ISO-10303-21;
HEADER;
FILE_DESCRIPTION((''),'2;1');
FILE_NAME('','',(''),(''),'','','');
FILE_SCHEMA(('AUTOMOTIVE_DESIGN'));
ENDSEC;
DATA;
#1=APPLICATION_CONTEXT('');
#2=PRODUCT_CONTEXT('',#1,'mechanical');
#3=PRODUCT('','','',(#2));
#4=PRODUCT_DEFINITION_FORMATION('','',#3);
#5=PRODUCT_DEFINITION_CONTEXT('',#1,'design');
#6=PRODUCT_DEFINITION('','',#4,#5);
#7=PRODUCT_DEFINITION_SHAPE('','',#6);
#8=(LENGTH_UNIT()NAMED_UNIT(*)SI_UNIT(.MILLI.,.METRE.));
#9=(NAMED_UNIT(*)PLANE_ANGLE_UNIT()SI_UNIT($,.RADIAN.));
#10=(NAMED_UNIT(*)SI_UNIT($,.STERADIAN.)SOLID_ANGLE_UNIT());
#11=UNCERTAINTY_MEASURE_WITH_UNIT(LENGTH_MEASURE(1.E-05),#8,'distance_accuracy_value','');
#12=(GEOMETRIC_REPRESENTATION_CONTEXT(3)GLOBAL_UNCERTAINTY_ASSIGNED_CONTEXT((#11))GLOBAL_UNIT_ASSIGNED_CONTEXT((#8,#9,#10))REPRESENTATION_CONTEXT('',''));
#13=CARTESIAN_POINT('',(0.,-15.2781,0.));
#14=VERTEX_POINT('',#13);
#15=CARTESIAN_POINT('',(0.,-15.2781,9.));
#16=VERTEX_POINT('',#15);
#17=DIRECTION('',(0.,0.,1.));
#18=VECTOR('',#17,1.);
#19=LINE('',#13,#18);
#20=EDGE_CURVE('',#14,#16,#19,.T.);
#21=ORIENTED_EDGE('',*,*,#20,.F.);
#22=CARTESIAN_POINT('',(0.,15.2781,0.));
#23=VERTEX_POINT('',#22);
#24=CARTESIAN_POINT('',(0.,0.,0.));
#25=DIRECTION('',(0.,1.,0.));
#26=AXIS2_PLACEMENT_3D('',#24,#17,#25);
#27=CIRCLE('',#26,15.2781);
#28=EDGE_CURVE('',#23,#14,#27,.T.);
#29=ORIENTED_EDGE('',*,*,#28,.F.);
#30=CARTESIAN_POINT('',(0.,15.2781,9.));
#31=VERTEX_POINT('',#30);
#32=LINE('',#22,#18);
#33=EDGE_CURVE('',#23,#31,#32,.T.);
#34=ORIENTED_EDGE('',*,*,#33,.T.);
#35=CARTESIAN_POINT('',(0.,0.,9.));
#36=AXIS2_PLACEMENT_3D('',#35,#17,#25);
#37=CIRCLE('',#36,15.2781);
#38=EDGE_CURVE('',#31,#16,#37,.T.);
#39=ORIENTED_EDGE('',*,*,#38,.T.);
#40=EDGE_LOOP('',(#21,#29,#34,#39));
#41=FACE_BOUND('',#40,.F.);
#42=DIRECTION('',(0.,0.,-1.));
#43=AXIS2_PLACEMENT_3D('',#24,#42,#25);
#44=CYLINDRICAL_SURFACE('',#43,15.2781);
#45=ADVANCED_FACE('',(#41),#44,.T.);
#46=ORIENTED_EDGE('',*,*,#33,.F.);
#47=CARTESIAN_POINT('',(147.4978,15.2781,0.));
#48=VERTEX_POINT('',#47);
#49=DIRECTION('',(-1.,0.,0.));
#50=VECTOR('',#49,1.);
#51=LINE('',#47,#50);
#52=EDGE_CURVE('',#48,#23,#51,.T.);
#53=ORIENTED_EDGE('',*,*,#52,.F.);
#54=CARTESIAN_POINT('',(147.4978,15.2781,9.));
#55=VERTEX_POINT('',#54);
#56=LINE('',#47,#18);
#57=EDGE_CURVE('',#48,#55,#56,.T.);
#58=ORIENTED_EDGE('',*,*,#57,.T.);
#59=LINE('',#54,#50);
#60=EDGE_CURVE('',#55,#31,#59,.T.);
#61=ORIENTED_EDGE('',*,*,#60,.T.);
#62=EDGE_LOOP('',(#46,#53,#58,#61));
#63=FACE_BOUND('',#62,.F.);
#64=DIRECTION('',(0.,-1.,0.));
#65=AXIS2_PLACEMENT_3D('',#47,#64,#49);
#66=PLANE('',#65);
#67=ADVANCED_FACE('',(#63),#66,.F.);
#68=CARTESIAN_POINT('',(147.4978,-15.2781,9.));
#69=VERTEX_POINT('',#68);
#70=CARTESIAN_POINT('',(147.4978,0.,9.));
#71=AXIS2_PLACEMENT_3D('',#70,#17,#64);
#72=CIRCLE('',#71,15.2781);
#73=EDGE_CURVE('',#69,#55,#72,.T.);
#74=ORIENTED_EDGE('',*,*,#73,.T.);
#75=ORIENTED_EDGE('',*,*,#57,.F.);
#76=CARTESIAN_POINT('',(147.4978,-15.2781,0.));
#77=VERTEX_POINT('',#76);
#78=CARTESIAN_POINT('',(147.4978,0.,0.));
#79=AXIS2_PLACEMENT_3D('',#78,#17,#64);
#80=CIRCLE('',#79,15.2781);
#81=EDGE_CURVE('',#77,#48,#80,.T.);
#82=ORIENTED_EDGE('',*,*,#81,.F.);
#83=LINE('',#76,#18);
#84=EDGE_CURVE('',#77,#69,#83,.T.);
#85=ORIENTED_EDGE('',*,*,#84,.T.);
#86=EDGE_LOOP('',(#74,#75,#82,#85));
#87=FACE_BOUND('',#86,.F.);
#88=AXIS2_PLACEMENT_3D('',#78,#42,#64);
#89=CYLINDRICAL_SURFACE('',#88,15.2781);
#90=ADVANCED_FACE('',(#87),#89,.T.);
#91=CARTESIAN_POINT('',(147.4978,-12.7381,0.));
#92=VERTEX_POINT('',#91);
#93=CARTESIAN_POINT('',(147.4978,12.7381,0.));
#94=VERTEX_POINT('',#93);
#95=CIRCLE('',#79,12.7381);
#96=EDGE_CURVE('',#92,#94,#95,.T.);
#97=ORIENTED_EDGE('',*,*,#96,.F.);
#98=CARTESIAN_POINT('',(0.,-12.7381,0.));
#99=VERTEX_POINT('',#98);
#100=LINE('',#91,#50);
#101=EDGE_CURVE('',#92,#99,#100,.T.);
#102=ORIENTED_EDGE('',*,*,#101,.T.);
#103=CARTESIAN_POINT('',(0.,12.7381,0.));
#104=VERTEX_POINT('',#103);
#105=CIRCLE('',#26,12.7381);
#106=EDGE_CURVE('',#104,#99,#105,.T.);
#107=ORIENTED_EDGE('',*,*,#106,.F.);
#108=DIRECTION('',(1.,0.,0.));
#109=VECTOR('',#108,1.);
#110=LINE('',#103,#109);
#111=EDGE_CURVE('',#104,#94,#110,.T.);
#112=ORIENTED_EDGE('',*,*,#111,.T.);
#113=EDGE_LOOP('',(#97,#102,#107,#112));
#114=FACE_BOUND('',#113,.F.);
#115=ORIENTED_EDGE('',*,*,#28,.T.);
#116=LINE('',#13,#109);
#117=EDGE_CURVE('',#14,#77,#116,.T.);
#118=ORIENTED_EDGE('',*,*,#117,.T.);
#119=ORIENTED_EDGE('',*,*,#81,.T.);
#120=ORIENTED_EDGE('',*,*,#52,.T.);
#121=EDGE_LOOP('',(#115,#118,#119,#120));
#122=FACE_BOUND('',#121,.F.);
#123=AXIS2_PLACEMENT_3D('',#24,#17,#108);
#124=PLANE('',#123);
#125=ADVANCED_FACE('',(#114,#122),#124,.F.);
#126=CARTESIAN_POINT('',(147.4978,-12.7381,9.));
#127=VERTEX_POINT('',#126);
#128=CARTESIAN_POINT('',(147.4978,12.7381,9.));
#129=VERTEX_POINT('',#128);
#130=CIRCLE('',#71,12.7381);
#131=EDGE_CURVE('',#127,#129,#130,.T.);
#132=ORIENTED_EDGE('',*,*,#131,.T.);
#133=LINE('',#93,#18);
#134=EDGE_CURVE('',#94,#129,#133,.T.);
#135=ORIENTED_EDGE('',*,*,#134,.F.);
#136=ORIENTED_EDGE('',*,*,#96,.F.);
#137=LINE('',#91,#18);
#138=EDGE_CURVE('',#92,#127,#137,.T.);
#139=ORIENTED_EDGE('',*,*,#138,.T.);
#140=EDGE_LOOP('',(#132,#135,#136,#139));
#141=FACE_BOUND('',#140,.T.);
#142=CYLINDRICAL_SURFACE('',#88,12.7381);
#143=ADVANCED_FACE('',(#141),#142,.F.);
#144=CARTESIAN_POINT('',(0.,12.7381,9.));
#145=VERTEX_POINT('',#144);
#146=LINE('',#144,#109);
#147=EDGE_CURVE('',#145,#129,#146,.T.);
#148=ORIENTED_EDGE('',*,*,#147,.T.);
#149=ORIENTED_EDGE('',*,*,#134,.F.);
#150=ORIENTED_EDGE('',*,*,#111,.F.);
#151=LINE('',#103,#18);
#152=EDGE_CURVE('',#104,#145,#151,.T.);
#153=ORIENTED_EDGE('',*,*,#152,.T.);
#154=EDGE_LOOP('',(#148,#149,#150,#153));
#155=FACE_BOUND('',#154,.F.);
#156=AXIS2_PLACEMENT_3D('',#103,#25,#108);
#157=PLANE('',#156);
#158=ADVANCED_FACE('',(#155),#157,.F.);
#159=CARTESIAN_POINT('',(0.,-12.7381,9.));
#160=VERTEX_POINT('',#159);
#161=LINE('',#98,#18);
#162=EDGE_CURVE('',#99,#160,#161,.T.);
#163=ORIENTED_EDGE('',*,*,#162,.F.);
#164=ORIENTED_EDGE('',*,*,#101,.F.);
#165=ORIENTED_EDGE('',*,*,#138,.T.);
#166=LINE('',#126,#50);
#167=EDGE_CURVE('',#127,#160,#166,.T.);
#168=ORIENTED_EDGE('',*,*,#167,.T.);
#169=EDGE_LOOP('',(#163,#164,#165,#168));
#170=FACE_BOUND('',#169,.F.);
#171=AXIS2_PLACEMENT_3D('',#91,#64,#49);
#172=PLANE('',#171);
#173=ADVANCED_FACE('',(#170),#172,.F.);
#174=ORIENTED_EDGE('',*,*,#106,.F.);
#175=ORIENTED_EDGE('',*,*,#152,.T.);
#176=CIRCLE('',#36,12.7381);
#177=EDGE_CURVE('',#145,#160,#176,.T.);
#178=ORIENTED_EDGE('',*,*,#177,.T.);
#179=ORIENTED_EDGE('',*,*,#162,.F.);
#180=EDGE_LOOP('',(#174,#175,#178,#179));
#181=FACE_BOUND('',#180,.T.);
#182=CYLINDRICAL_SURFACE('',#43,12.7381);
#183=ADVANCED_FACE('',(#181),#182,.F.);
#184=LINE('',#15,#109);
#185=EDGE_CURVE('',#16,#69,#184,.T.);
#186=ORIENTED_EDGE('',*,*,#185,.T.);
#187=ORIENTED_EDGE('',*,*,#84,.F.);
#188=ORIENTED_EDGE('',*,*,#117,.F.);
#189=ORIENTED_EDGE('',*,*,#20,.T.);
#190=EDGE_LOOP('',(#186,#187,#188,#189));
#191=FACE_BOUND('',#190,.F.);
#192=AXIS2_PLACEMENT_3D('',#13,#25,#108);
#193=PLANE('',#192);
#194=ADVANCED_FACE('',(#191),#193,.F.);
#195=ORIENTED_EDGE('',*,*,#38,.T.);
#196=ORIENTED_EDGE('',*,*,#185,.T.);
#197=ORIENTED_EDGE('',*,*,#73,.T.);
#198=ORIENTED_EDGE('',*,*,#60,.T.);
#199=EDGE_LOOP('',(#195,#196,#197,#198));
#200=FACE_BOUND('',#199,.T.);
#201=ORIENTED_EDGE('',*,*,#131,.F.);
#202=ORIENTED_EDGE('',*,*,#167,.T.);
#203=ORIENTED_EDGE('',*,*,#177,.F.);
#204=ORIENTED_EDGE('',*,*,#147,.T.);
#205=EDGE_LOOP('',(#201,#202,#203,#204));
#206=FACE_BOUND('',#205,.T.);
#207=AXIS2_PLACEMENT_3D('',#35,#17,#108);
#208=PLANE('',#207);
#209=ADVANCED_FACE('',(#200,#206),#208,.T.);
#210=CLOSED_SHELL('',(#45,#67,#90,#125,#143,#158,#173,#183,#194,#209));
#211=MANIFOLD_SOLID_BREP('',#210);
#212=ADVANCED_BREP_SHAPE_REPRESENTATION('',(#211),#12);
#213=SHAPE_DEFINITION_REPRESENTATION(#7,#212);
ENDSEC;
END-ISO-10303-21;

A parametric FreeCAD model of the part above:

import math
import FreeCAD as App
import Part
import Sketcher
Q = App.Units.Quantity

doc = App.newDocument("Part")
params = doc.addObject("Spreadsheet::Sheet", "Params")
for row, (alias, value) in enumerate([
    ("sketch1_width", "5.807 in"),
    ("pad1_length", "9 mm"),
], start=1):
    params.set(f"A{row}", alias)
    params.set(f"B{row}", "=" + value)
    params.setAlias(f"B{row}", alias)

body = doc.addObject("PartDesign::Body", "Body")

# Sketch on XY plane
sketch1 = body.newObject("Sketcher::SketchObject", "Sketch")
sketch1.AttachmentSupport = (doc.getObject("XY_Plane"), [""])
sketch1.MapMode = "FlatFace"
sketch1.addGeometry([
    Part.ArcOfCircle(Part.Circle(App.Vector(147.4978, 0, 0), App.Vector(0, 0, 1), 15.2781), math.radians(-90), math.radians(90)),  # 0
    Part.LineSegment(App.Vector(147.4978, 15.2781, 0), App.Vector(0, 15.2781, 0)),  # 1
    Part.ArcOfCircle(Part.Circle(App.Vector(0, 0, 0), App.Vector(0, 0, 1), 15.2781), math.radians(90), math.radians(270)),  # 2
    Part.LineSegment(App.Vector(0, -15.2781, 0), App.Vector(147.4978, -15.2781, 0)),  # 3
    Part.ArcOfCircle(Part.Circle(App.Vector(0, 0, 0), App.Vector(0, 0, 1), 12.7381), math.radians(90), math.radians(270)),  # 4
    Part.LineSegment(App.Vector(0, 12.7381, 0), App.Vector(147.4978, 12.7381, 0)),  # 5
    Part.ArcOfCircle(Part.Circle(App.Vector(147.4978, 0, 0), App.Vector(0, 0, 1), 12.7381), math.radians(-90), math.radians(90)),  # 6
    Part.LineSegment(App.Vector(147.4978, -12.7381, 0), App.Vector(0, -12.7381, 0)),  # 7
], False)
sketch1.addConstraint([
    Sketcher.Constraint("Tangent", 0, 2, 1, 1),
    Sketcher.Constraint("Tangent", 1, 2, 2, 1),
    Sketcher.Constraint("Tangent", 2, 2, 3, 1),
    Sketcher.Constraint("Tangent", 3, 2, 0, 1),
    Sketcher.Constraint("Tangent", 4, 1, 5, 1),
    Sketcher.Constraint("Tangent", 5, 2, 6, 2),
    Sketcher.Constraint("Tangent", 6, 1, 7, 1),
    Sketcher.Constraint("Tangent", 7, 2, 4, 2),
    Sketcher.Constraint("Horizontal", 1),
    Sketcher.Constraint("Horizontal", 3),
    Sketcher.Constraint("Horizontal", 5),
    Sketcher.Constraint("Horizontal", 7),
    Sketcher.Constraint("Coincident", 2, 3, -1, 1),
    Sketcher.Constraint("Coincident", 4, 3, -1, 1),
    Sketcher.Constraint("Vertical", 6, 3, 0, 2),
    Sketcher.Constraint("Radius", 4, Q("0.5015 in")),
    Sketcher.Constraint("DistanceY", 4, 1, 1, 2, Q("0.1 in")),
    Sketcher.Constraint("DistanceX", 1, 2, 1, 1, Q("5.807 in")),
])
sketch1.setExpression("Constraints[17]", "Params.sketch1_width")
pad1 = body.newObject("PartDesign::Pad", "Pad")
pad1.Profile = sketch1
pad1.setExpression("Length", "Params.pad1_length")

doc.recompute()
